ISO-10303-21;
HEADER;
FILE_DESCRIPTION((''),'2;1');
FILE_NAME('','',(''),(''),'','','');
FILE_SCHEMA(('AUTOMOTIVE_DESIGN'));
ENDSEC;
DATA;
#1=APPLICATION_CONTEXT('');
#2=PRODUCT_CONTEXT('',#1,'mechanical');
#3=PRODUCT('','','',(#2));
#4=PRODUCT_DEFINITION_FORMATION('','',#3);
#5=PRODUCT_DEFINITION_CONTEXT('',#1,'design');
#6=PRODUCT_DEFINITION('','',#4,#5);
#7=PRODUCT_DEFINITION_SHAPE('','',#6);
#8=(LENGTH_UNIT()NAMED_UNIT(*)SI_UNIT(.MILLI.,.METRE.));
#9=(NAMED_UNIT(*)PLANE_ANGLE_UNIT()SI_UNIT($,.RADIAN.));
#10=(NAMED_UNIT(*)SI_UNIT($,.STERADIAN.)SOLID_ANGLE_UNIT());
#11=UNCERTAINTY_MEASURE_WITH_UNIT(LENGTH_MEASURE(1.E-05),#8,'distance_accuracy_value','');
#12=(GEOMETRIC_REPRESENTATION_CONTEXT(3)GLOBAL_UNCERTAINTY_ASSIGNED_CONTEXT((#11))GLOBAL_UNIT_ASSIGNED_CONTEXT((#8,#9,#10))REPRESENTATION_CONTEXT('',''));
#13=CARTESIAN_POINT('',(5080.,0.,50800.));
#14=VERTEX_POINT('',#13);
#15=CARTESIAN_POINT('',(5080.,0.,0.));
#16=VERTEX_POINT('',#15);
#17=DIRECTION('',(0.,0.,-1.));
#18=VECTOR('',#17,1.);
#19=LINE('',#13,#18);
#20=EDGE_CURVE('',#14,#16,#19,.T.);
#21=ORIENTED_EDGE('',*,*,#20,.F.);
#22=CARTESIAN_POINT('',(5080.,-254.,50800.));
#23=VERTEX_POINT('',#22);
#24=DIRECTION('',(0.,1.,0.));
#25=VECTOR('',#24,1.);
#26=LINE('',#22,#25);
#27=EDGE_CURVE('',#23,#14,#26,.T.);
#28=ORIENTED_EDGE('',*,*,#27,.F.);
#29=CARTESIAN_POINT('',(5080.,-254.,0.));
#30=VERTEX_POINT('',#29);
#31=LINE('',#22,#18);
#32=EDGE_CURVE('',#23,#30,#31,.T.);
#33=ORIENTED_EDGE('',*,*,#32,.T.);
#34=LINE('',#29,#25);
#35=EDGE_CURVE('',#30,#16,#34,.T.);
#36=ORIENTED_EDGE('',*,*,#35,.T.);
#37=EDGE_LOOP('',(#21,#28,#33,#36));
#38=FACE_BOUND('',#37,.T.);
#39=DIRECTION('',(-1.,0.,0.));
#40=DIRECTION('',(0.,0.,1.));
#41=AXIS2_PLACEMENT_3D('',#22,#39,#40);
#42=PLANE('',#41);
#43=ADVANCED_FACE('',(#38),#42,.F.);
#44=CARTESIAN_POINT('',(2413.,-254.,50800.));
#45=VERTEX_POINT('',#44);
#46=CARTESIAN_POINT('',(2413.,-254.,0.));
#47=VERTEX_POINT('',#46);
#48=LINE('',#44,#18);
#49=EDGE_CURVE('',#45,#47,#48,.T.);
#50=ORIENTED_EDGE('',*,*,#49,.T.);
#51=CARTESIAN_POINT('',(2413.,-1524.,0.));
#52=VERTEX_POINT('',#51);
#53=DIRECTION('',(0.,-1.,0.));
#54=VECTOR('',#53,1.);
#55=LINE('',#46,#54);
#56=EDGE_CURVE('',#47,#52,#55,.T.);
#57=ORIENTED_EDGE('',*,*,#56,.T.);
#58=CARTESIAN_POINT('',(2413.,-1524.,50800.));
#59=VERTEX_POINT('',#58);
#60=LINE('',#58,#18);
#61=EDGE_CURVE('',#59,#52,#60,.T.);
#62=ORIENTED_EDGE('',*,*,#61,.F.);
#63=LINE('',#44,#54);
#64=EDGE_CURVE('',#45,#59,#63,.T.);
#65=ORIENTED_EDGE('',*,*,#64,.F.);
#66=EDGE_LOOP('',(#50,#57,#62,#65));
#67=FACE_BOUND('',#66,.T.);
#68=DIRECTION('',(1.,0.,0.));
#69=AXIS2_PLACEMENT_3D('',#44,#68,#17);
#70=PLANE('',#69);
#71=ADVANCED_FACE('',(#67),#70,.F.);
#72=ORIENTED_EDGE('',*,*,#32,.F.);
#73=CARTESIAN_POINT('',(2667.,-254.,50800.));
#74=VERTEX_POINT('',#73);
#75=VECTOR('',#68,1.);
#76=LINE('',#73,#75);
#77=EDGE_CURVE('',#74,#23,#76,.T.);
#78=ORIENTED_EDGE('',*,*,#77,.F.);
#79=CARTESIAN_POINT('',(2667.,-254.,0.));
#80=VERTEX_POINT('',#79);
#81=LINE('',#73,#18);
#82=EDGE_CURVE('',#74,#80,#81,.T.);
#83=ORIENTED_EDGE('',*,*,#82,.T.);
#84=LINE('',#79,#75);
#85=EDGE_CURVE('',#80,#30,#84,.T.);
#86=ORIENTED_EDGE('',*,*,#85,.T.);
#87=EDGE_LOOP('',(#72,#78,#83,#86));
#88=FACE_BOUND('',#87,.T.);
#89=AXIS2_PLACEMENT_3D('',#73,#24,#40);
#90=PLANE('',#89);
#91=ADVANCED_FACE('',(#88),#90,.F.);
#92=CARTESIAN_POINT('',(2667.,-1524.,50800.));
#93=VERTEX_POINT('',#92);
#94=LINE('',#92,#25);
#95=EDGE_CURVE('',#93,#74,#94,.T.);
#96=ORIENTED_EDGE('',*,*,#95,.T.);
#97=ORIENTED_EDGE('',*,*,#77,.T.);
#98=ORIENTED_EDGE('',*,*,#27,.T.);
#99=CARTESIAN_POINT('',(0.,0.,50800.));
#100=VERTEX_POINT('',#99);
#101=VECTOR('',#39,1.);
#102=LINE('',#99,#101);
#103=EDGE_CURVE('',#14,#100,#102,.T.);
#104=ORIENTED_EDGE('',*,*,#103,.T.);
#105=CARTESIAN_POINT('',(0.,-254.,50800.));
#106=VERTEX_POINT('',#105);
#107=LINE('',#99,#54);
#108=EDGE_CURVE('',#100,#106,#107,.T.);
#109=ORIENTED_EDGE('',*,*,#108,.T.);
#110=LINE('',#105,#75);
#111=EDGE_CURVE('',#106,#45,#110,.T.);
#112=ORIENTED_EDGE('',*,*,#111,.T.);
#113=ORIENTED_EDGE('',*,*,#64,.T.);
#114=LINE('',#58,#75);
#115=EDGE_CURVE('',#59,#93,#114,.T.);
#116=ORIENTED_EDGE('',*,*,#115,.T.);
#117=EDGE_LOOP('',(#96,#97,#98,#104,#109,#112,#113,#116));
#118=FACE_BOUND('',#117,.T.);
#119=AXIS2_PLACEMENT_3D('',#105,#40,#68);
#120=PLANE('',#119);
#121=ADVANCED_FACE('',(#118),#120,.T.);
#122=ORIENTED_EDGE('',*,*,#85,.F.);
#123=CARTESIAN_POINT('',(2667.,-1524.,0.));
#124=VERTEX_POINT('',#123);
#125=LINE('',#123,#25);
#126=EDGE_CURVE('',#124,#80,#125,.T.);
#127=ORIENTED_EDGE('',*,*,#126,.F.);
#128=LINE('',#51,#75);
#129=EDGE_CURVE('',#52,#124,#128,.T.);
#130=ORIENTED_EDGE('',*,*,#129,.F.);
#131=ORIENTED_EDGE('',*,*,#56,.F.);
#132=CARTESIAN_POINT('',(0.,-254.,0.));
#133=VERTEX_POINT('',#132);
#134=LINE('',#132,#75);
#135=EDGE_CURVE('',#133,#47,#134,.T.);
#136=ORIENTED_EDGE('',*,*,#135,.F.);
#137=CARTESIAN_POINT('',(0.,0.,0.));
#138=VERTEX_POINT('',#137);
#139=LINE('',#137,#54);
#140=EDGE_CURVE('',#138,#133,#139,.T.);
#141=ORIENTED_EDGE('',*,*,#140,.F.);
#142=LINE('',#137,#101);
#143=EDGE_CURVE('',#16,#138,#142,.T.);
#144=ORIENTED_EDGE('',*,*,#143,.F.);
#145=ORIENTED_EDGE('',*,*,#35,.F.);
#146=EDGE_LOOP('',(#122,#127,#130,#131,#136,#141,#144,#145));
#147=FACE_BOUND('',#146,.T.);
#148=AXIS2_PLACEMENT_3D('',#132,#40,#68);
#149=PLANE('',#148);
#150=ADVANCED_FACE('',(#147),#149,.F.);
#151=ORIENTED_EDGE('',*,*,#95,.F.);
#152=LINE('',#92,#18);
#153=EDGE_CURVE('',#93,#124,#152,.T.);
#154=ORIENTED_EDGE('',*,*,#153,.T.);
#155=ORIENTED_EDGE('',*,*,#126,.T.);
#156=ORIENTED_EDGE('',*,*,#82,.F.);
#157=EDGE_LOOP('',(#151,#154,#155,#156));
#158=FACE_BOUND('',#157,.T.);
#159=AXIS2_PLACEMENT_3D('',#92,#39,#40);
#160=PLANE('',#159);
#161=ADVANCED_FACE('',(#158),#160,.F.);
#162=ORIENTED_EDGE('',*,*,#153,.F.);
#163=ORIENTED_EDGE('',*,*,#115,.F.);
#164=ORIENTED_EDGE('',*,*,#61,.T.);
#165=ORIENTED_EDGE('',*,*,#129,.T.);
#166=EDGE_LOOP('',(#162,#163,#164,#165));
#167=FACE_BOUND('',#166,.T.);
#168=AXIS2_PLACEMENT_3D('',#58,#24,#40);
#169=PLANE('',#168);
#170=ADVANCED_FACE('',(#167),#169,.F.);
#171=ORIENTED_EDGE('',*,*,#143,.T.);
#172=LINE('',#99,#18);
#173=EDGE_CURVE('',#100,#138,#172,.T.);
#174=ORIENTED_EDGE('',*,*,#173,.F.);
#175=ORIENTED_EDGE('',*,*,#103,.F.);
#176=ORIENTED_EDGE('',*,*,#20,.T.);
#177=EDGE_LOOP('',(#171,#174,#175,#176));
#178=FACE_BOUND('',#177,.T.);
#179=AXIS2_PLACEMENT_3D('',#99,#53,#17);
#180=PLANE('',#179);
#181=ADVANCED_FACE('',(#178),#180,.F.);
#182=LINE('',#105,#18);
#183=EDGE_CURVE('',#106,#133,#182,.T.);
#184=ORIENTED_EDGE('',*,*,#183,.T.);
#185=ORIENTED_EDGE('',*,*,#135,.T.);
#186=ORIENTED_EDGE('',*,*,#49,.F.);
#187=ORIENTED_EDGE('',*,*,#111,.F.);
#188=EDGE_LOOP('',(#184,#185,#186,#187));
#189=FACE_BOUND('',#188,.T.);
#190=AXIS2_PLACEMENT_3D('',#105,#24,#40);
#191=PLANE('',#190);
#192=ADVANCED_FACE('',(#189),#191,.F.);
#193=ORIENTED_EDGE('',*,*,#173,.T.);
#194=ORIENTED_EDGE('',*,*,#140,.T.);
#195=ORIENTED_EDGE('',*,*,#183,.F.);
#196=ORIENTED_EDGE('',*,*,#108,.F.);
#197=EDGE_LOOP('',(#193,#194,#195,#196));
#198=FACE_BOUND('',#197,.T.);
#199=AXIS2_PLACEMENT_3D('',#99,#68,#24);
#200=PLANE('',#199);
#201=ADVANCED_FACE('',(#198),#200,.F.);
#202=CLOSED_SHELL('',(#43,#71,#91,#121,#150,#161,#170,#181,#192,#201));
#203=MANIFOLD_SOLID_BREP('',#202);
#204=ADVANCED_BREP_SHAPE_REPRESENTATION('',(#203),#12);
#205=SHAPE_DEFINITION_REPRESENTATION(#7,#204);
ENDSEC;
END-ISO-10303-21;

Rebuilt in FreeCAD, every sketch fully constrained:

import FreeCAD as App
import Part
import Sketcher

V = App.Vector
Q = App.Units.Quantity


def add_polygon(sketch, points):
    """Adds a closed chain of lines whose ends are joined by coincident constraints."""
    first, n = sketch.GeometryCount, len(points)
    for a, b in zip(points, points[1:] + points[:1]):
        sketch.addGeometry(Part.LineSegment(App.Vector(*a, 0), App.Vector(*b, 0)), False)
    for i in range(n):
        sketch.addConstraint(Sketcher.Constraint("Coincident", first + i, 2, first + (i + 1) % n, 1))

doc = App.newDocument("Part")
body = doc.addObject("PartDesign::Body", "Body")

sketch1 = body.newObject("Sketcher::SketchObject", "Sketch")
sketch1.AttachmentSupport = (doc.getObject("XY_Plane"), [""])
sketch1.MapMode = "FlatFace"
add_polygon(sketch1, [(5080, 0), (0, 0), (0, -254), (2413, -254), (2413, -1524), (2667, -1524), (2667, -254), (5080, -254)])
sketch1.addConstraint([
    Sketcher.Constraint("Horizontal", 0),
    Sketcher.Constraint("Vertical", 1),
    Sketcher.Constraint("Horizontal", 2),
    Sketcher.Constraint("Vertical", 3),
    Sketcher.Constraint("Horizontal", 4),
    Sketcher.Constraint("Vertical", 5),
    Sketcher.Constraint("Horizontal", 6),
    Sketcher.Constraint("Vertical", 7),
    Sketcher.Constraint("Coincident", 0, 2, -1, 1),
    Sketcher.Constraint("Horizontal", 2, 2, 5, 2),
    Sketcher.Constraint("Equal", 2, 6),
    Sketcher.Constraint("Equal", 4, 1),
    Sketcher.Constraint("DistanceX", 0, 2, 0, 1, Q("200 in")),
    Sketcher.Constraint("DistanceX", 2, 1, 2, 2, Q("95 in")),
    Sketcher.Constraint("DistanceY", 3, 2, 3, 1, Q("50 in")),
])
pad1 = body.newObject("PartDesign::Pad", "Pad")
pad1.Profile = sketch1
pad1.Length = Q("2000 in")

doc.recompute()
